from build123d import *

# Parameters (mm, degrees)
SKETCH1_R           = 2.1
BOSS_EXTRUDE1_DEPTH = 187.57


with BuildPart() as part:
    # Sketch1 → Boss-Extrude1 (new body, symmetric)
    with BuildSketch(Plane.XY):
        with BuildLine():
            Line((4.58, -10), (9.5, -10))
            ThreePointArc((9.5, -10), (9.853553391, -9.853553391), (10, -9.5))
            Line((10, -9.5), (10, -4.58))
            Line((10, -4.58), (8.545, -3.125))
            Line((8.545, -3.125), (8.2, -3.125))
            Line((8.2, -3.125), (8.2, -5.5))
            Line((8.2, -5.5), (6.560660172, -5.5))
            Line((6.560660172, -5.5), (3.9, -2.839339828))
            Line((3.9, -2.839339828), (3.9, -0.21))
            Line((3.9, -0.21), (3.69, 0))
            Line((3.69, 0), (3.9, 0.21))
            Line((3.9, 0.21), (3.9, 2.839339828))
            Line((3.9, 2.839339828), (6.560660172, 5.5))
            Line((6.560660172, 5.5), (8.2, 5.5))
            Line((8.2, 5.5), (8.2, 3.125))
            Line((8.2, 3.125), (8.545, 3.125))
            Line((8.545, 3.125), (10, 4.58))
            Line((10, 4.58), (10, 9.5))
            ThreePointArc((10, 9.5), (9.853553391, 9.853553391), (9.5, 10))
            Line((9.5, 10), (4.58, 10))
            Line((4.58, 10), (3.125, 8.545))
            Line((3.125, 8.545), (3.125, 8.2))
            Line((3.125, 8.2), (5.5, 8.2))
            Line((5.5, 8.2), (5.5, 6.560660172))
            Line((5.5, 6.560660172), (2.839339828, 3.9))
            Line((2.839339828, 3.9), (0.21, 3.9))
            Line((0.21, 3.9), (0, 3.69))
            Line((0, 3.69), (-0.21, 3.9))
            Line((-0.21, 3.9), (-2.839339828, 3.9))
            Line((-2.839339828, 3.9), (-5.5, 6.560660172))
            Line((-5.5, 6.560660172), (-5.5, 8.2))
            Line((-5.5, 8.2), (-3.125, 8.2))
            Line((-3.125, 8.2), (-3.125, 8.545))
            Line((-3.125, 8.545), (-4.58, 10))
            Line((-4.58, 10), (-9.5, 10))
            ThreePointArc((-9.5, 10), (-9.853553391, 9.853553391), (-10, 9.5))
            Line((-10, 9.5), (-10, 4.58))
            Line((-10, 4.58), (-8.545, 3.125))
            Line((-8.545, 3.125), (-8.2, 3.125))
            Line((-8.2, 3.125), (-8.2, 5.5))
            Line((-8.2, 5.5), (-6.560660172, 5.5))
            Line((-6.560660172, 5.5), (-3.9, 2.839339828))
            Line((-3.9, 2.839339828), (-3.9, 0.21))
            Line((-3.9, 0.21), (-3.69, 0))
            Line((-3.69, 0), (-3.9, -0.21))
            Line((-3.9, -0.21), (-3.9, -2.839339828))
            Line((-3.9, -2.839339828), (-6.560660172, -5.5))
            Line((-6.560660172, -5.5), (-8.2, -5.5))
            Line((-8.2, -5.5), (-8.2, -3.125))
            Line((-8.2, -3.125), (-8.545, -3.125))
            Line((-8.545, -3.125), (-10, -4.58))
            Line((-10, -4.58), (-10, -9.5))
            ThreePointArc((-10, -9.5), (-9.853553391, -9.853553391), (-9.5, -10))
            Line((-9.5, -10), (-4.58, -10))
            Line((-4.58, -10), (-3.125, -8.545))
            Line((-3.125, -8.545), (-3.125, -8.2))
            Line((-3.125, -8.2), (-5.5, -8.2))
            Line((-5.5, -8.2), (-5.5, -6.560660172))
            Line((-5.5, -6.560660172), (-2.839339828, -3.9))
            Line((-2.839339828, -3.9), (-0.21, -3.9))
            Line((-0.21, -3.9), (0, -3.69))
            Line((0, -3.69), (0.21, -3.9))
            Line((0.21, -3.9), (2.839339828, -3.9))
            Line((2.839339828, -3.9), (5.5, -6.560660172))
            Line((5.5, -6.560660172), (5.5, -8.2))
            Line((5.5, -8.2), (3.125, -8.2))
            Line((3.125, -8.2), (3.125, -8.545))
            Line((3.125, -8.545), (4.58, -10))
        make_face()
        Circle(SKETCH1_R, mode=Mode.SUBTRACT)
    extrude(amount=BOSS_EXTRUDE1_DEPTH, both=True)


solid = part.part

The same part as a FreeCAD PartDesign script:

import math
import FreeCAD as App
import Part
import Sketcher
from FreeCAD import Vector

doc = App.newDocument("Part")
body = doc.addObject("PartDesign::Body", "Body")

sketch1 = body.newObject("Sketcher::SketchObject", "Sketch")
sketch1.AttachmentSupport = (doc.getObject("XY_Plane"), [""])
sketch1.MapMode = "FlatFace"
sketch1.addGeometry(Part.LineSegment(Vector(4.58, -10, 0), Vector(9.5, -10, 0)), False)
sketch1.addGeometry(Part.ArcOfCircle(Part.Circle(Vector(9.5, -9.5, 0), Vector(0, 0, 1), 0.5), math.radians(-90), math.radians(0)), False)
sketch1.addGeometry(Part.LineSegment(Vector(10, -9.5, 0), Vector(10, -4.58, 0)), False)
sketch1.addGeometry(Part.LineSegment(Vector(10, -4.58, 0), Vector(8.545, -3.125, 0)), False)
sketch1.addGeometry(Part.LineSegment(Vector(8.545, -3.125, 0), Vector(8.2, -3.125, 0)), False)
sketch1.addGeometry(Part.LineSegment(Vector(8.2, -3.125, 0), Vector(8.2, -5.5, 0)), False)
sketch1.addGeometry(Part.LineSegment(Vector(8.2, -5.5, 0), Vector(6.56066, -5.5, 0)), False)
sketch1.addGeometry(Part.LineSegment(Vector(6.56066, -5.5, 0), Vector(3.9, -2.83934, 0)), False)
sketch1.addGeometry(Part.LineSegment(Vector(3.9, -2.83934, 0), Vector(3.9, -0.21, 0)), False)
sketch1.addGeometry(Part.LineSegment(Vector(3.9, -0.21, 0), Vector(3.69, 0, 0)), False)
sketch1.addGeometry(Part.LineSegment(Vector(3.69, 0, 0), Vector(3.9, 0.21, 0)), False)
sketch1.addGeometry(Part.LineSegment(Vector(3.9, 0.21, 0), Vector(3.9, 2.83934, 0)), False)
sketch1.addGeometry(Part.LineSegment(Vector(3.9, 2.83934, 0), Vector(6.56066, 5.5, 0)), False)
sketch1.addGeometry(Part.LineSegment(Vector(6.56066, 5.5, 0), Vector(8.2, 5.5, 0)), False)
sketch1.addGeometry(Part.LineSegment(Vector(8.2, 5.5, 0), Vector(8.2, 3.125, 0)), False)
sketch1.addGeometry(Part.LineSegment(Vector(8.2, 3.125, 0), Vector(8.545, 3.125, 0)), False)
sketch1.addGeometry(Part.LineSegment(Vector(8.545, 3.125, 0), Vector(10, 4.58, 0)), False)
sketch1.addGeometry(Part.LineSegment(Vector(10, 4.58, 0), Vector(10, 9.5, 0)), False)
sketch1.addGeometry(Part.ArcOfCircle(Part.Circle(Vector(9.5, 9.5, 0), Vector(0, 0, 1), 0.5), math.radians(0), math.radians(90)), False)
sketch1.addGeometry(Part.LineSegment(Vector(9.5, 10, 0), Vector(4.58, 10, 0)), False)
sketch1.addGeometry(Part.LineSegment(Vector(4.58, 10, 0), Vector(3.125, 8.545, 0)), False)
sketch1.addGeometry(Part.LineSegment(Vector(3.125, 8.545, 0), Vector(3.125, 8.2, 0)), False)
sketch1.addGeometry(Part.LineSegment(Vector(3.125, 8.2, 0), Vector(5.5, 8.2, 0)), False)
sketch1.addGeometry(Part.LineSegment(Vector(5.5, 8.2, 0), Vector(5.5, 6.56066, 0)), False)
sketch1.addGeometry(Part.LineSegment(Vector(5.5, 6.56066, 0), Vector(2.83934, 3.9, 0)), False)
sketch1.addGeometry(Part.LineSegment(Vector(2.83934, 3.9, 0), Vector(0.21, 3.9, 0)), False)
sketch1.addGeometry(Part.LineSegment(Vector(0.21, 3.9, 0), Vector(0, 3.69, 0)), False)
sketch1.addGeometry(Part.LineSegment(Vector(0, 3.69, 0), Vector(-0.21, 3.9, 0)), False)
sketch1.addGeometry(Part.LineSegment(Vector(-0.21, 3.9, 0), Vector(-2.83934, 3.9, 0)), False)
sketch1.addGeometry(Part.LineSegment(Vector(-2.83934, 3.9, 0), Vector(-5.5, 6.56066, 0)), False)
sketch1.addGeometry(Part.LineSegment(Vector(-5.5, 6.56066, 0), Vector(-5.5, 8.2, 0)), False)
sketch1.addGeometry(Part.LineSegment(Vector(-5.5, 8.2, 0), Vector(-3.125, 8.2, 0)), False)
sketch1.addGeometry(Part.LineSegment(Vector(-3.125, 8.2, 0), Vector(-3.125, 8.545, 0)), False)
sketch1.addGeometry(Part.LineSegment(Vector(-3.125, 8.545, 0), Vector(-4.58, 10, 0)), False)
sketch1.addGeometry(Part.LineSegment(Vector(-4.58, 10, 0), Vector(-9.5, 10, 0)), False)
sketch1.addGeometry(Part.ArcOfCircle(Part.Circle(Vector(-9.5, 9.5, 0), Vector(0, 0, 1), 0.5), math.radians(90), math.radians(180)), False)
sketch1.addGeometry(Part.LineSegment(Vector(-10, 9.5, 0), Vector(-10, 4.58, 0)), False)
sketch1.addGeometry(Part.LineSegment(Vector(-10, 4.58, 0), Vector(-8.545, 3.125, 0)), False)
sketch1.addGeometry(Part.LineSegment(Vector(-8.545, 3.125, 0), Vector(-8.2, 3.125, 0)), False)
sketch1.addGeometry(Part.LineSegment(Vector(-8.2, 3.125, 0), Vector(-8.2, 5.5, 0)), False)
sketch1.addGeometry(Part.LineSegment(Vector(-8.2, 5.5, 0), Vector(-6.56066, 5.5, 0)), False)
sketch1.addGeometry(Part.LineSegment(Vector(-6.56066, 5.5, 0), Vector(-3.9, 2.83934, 0)), False)
sketch1.addGeometry(Part.LineSegment(Vector(-3.9, 2.83934, 0), Vector(-3.9, 0.21, 0)), False)
sketch1.addGeometry(Part.LineSegment(Vector(-3.9, 0.21, 0), Vector(-3.69, 0, 0)), False)
sketch1.addGeometry(Part.LineSegment(Vector(-3.69, 0, 0), Vector(-3.9, -0.21, 0)), False)
sketch1.addGeometry(Part.LineSegment(Vector(-3.9, -0.21, 0), Vector(-3.9, -2.83934, 0)), False)
sketch1.addGeometry(Part.LineSegment(Vector(-3.9, -2.83934, 0), Vector(-6.56066, -5.5, 0)), False)
sketch1.addGeometry(Part.LineSegment(Vector(-6.56066, -5.5, 0), Vector(-8.2, -5.5, 0)), False)
sketch1.addGeometry(Part.LineSegment(Vector(-8.2, -5.5, 0), Vector(-8.2, -3.125, 0)), False)
sketch1.addGeometry(Part.LineSegment(Vector(-8.2, -3.125, 0), Vector(-8.545, -3.125, 0)), False)
sketch1.addGeometry(Part.LineSegment(Vector(-8.545, -3.125, 0), Vector(-10, -4.58, 0)), False)
sketch1.addGeometry(Part.LineSegment(Vector(-10, -4.58, 0), Vector(-10, -9.5, 0)), False)
sketch1.addGeometry(Part.ArcOfCircle(Part.Circle(Vector(-9.5, -9.5, 0), Vector(0, 0, 1), 0.5), math.radians(180), math.radians(270)), False)
sketch1.addGeometry(Part.LineSegment(Vector(-9.5, -10, 0), Vector(-4.58, -10, 0)), False)
sketch1.addGeometry(Part.LineSegment(Vector(-4.58, -10, 0), Vector(-3.125, -8.545, 0)), False)
sketch1.addGeometry(Part.LineSegment(Vector(-3.125, -8.545, 0), Vector(-3.125, -8.2, 0)), False)
sketch1.addGeometry(Part.LineSegment(Vector(-3.125, -8.2, 0), Vector(-5.5, -8.2, 0)), False)
sketch1.addGeometry(Part.LineSegment(Vector(-5.5, -8.2, 0), Vector(-5.5, -6.56066, 0)), False)
sketch1.addGeometry(Part.LineSegment(Vector(-5.5, -6.56066, 0), Vector(-2.83934, -3.9, 0)), False)
sketch1.addGeometry(Part.LineSegment(Vector(-2.83934, -3.9, 0), Vector(-0.21, -3.9, 0)), False)
sketch1.addGeometry(Part.LineSegment(Vector(-0.21, -3.9, 0), Vector(0, -3.69, 0)), False)
sketch1.addGeometry(Part.LineSegment(Vector(0, -3.69, 0), Vector(0.21, -3.9, 0)), False)
sketch1.addGeometry(Part.LineSegment(Vector(0.21, -3.9, 0), Vector(2.83934, -3.9, 0)), False)
sketch1.addGeometry(Part.LineSegment(Vector(2.83934, -3.9, 0), Vector(5.5, -6.56066, 0)), False)
sketch1.addGeometry(Part.LineSegment(Vector(5.5, -6.56066, 0), Vector(5.5, -8.2, 0)), False)
sketch1.addGeometry(Part.LineSegment(Vector(5.5, -8.2, 0), Vector(3.125, -8.2, 0)), False)
sketch1.addGeometry(Part.LineSegment(Vector(3.125, -8.2, 0), Vector(3.125, -8.545, 0)), False)
sketch1.addGeometry(Part.LineSegment(Vector(3.125, -8.545, 0), Vector(4.58, -10, 0)), False)
sketch1.addGeometry(Part.Circle(Vector(0, 0, 0), Vector(0, 0, 1), 2.1), False)
sketch1.addConstraint(Sketcher.Constraint("Tangent", 0, 2, 1, 1))
sketch1.addConstraint(Sketcher.Constraint("Tangent", 1, 2, 2, 1))
sketch1.addConstraint(Sketcher.Constraint("Coincident", 2, 2, 3, 1))
sketch1.addConstraint(Sketcher.Constraint("Coincident", 3, 2, 4, 1))
sketch1.addConstraint(Sketcher.Constraint("Coincident", 4, 2, 5, 1))
sketch1.addConstraint(Sketcher.Constraint("Coincident", 5, 2, 6, 1))
sketch1.addConstraint(Sketcher.Constraint("Coincident", 6, 2, 7, 1))
sketch1.addConstraint(Sketcher.Constraint("Coincident", 7, 2, 8, 1))
sketch1.addConstraint(Sketcher.Constraint("Coincident", 8, 2, 9, 1))
sketch1.addConstraint(Sketcher.Constraint("Coincident", 9, 2, 10, 1))
sketch1.addConstraint(Sketcher.Constraint("Coincident", 10, 2, 11, 1))
sketch1.addConstraint(Sketcher.Constraint("Coincident", 11, 2, 12, 1))
sketch1.addConstraint(Sketcher.Constraint("Coincident", 12, 2, 13, 1))
sketch1.addConstraint(Sketcher.Constraint("Coincident", 13, 2, 14, 1))
sketch1.addConstraint(Sketcher.Constraint("Coincident", 14, 2, 15, 1))
sketch1.addConstraint(Sketcher.Constraint("Coincident", 15, 2, 16, 1))
sketch1.addConstraint(Sketcher.Constraint("Coincident", 16, 2, 17, 1))
sketch1.addConstraint(Sketcher.Constraint("Tangent", 17, 2, 18, 1))
sketch1.addConstraint(Sketcher.Constraint("Tangent", 18, 2, 19, 1))
sketch1.addConstraint(Sketcher.Constraint("Coincident", 19, 2, 20, 1))
sketch1.addConstraint(Sketcher.Constraint("Coincident", 20, 2, 21, 1))
sketch1.addConstraint(Sketcher.Constraint("Coincident", 21, 2, 22, 1))
sketch1.addConstraint(Sketcher.Constraint("Coincident", 22, 2, 23, 1))
sketch1.addConstraint(Sketcher.Constraint("Coincident", 23, 2, 24, 1))
sketch1.addConstraint(Sketcher.Constraint("Coincident", 24, 2, 25, 1))
sketch1.addConstraint(Sketcher.Constraint("Coincident", 25, 2, 26, 1))
sketch1.addConstraint(Sketcher.Constraint("Coincident", 26, 2, 27, 1))
sketch1.addConstraint(Sketcher.Constraint("Coincident", 27, 2, 28, 1))
sketch1.addConstraint(Sketcher.Constraint("Coincident", 28, 2, 29, 1))
sketch1.addConstraint(Sketcher.Constraint("Coincident", 29, 2, 30, 1))
sketch1.addConstraint(Sketcher.Constraint("Coincident", 30, 2, 31, 1))
sketch1.addConstraint(Sketcher.Constraint("Coincident", 31, 2, 32, 1))
sketch1.addConstraint(Sketcher.Constraint("Coincident", 32, 2, 33, 1))
sketch1.addConstraint(Sketcher.Constraint("Coincident", 33, 2, 34, 1))
sketch1.addConstraint(Sketcher.Constraint("Tangent", 34, 2, 35, 1))
sketch1.addConstraint(Sketcher.Constraint("Tangent", 35, 2, 36, 1))
sketch1.addConstraint(Sketcher.Constraint("Coincident", 36, 2, 37, 1))
sketch1.addConstraint(Sketcher.Constraint("Coincident", 37, 2, 38, 1))
sketch1.addConstraint(Sketcher.Constraint("Coincident", 38, 2, 39, 1))
sketch1.addConstraint(Sketcher.Constraint("Coincident", 39, 2, 40, 1))
sketch1.addConstraint(Sketcher.Constraint("Coincident", 40, 2, 41, 1))
sketch1.addConstraint(Sketcher.Constraint("Coincident", 41, 2, 42, 1))
sketch1.addConstraint(Sketcher.Constraint("Coincident", 42, 2, 43, 1))
sketch1.addConstraint(Sketcher.Constraint("Coincident", 43, 2, 44, 1))
sketch1.addConstraint(Sketcher.Constraint("Coincident", 44, 2, 45, 1))
sketch1.addConstraint(Sketcher.Constraint("Coincident", 45, 2, 46, 1))
sketch1.addConstraint(Sketcher.Constraint("Coincident", 46, 2, 47, 1))
sketch1.addConstraint(Sketcher.Constraint("Coincident", 47, 2, 48, 1))
sketch1.addConstraint(Sketcher.Constraint("Coincident", 48, 2, 49, 1))
sketch1.addConstraint(Sketcher.Constraint("Coincident", 49, 2, 50, 1))
sketch1.addConstraint(Sketcher.Constraint("Coincident", 50, 2, 51, 1))
sketch1.addConstraint(Sketcher.Constraint("Tangent", 51, 2, 52, 1))
sketch1.addConstraint(Sketcher.Constraint("Tangent", 52, 2, 53, 1))
sketch1.addConstraint(Sketcher.Constraint("Coincident", 53, 2, 54, 1))
sketch1.addConstraint(Sketcher.Constraint("Coincident", 54, 2, 55, 1))
sketch1.addConstraint(Sketcher.Constraint("Coincident", 55, 2, 56, 1))
sketch1.addConstraint(Sketcher.Constraint("Coincident", 56, 2, 57, 1))
sketch1.addConstraint(Sketcher.Constraint("Coincident", 57, 2, 58, 1))
sketch1.addConstraint(Sketcher.Constraint("Coincident", 58, 2, 59, 1))
sketch1.addConstraint(Sketcher.Constraint("Coincident", 59, 2, 60, 1))
sketch1.addConstraint(Sketcher.Constraint("Coincident", 60, 2, 61, 1))
sketch1.addConstraint(Sketcher.Constraint("Coincident", 61, 2, 62, 1))
sketch1.addConstraint(Sketcher.Constraint("Coincident", 62, 2, 63, 1))
sketch1.addConstraint(Sketcher.Constraint("Coincident", 63, 2, 64, 1))
sketch1.addConstraint(Sketcher.Constraint("Coincident", 64, 2, 65, 1))
sketch1.addConstraint(Sketcher.Constraint("Coincident", 65, 2, 66, 1))
sketch1.addConstraint(Sketcher.Constraint("Coincident", 66, 2, 67, 1))
sketch1.addConstraint(Sketcher.Constraint("Coincident", 67, 2, 0, 1))
sketch1.addConstraint(Sketcher.Constraint("Horizontal", 0))
sketch1.addConstraint(Sketcher.Constraint("Vertical", 2))
sketch1.addConstraint(Sketcher.Constraint("Horizontal", 4))
sketch1.addConstraint(Sketcher.Constraint("Vertical", 5))
sketch1.addConstraint(Sketcher.Constraint("Horizontal", 6))
sketch1.addConstraint(Sketcher.Constraint("Vertical", 8))
sketch1.addConstraint(Sketcher.Constraint("Vertical", 11))
sketch1.addConstraint(Sketcher.Constraint("Horizontal", 13))
sketch1.addConstraint(Sketcher.Constraint("Vertical", 14))
sketch1.addConstraint(Sketcher.Constraint("Horizontal", 15))
sketch1.addConstraint(Sketcher.Constraint("Vertical", 17))
sketch1.addConstraint(Sketcher.Constraint("Horizontal", 19))
sketch1.addConstraint(Sketcher.Constraint("Vertical", 21))
sketch1.addConstraint(Sketcher.Constraint("Horizontal", 22))
sketch1.addConstraint(Sketcher.Constraint("Vertical", 23))
sketch1.addConstraint(Sketcher.Constraint("Horizontal", 25))
sketch1.addConstraint(Sketcher.Constraint("Horizontal", 28))
sketch1.addConstraint(Sketcher.Constraint("Vertical", 30))
sketch1.addConstraint(Sketcher.Constraint("Horizontal", 31))
sketch1.addConstraint(Sketcher.Constraint("Vertical", 32))
sketch1.addConstraint(Sketcher.Constraint("Horizontal", 34))
sketch1.addConstraint(Sketcher.Constraint("Vertical", 36))
sketch1.addConstraint(Sketcher.Constraint("Horizontal", 38))
sketch1.addConstraint(Sketcher.Constraint("Vertical", 39))
sketch1.addConstraint(Sketcher.Constraint("Horizontal", 40))
sketch1.addConstraint(Sketcher.Constraint("Vertical", 42))
sketch1.addConstraint(Sketcher.Constraint("Vertical", 45))
sketch1.addConstraint(Sketcher.Constraint("Horizontal", 47))
sketch1.addConstraint(Sketcher.Constraint("Vertical", 48))
sketch1.addConstraint(Sketcher.Constraint("Horizontal", 49))
sketch1.addConstraint(Sketcher.Constraint("Vertical", 51))
sketch1.addConstraint(Sketcher.Constraint("Horizontal", 53))
sketch1.addConstraint(Sketcher.Constraint("Vertical", 55))
sketch1.addConstraint(Sketcher.Constraint("Horizontal", 56))
sketch1.addConstraint(Sketcher.Constraint("Vertical", 57))
sketch1.addConstraint(Sketcher.Constraint("Horizontal", 59))
sketch1.addConstraint(Sketcher.Constraint("Horizontal", 62))
sketch1.addConstraint(Sketcher.Constraint("Vertical", 64))
sketch1.addConstraint(Sketcher.Constraint("Horizontal", 65))
sketch1.addConstraint(Sketcher.Constraint("Vertical", 66))
sketch1.addConstraint(Sketcher.Constraint("Coincident", 68, 3, -1, 1))
sketch1.addConstraint(Sketcher.Constraint("Equal", 1, 18))
sketch1.addConstraint(Sketcher.Constraint("Equal", 18, 35))
sketch1.addConstraint(Sketcher.Constraint("Equal", 35, 52))
sketch1.addConstraint(Sketcher.Constraint("Symmetric", 1, 3, 35, 3, -1, 1))
sketch1.addConstraint(Sketcher.Constraint("Symmetric", 18, 3, 52, 3, -1, 1))
sketch1.addConstraint(Sketcher.Constraint("Symmetric", 3, 2, 37, 2, -1, 1))
sketch1.addConstraint(Sketcher.Constraint("Symmetric", 5, 2, 39, 2, -1, 1))
sketch1.addConstraint(Sketcher.Constraint("Symmetric", 7, 2, 41, 2, -1, 1))
sketch1.addConstraint(Sketcher.Constraint("Symmetric", 9, 2, 43, 2, -1, 1))
sketch1.addConstraint(Sketcher.Constraint("Symmetric", 10, 2, 44, 2, -1, 1))
sketch1.addConstraint(Sketcher.Constraint("Symmetric", 12, 2, 46, 2, -1, 1))
sketch1.addConstraint(Sketcher.Constraint("Symmetric", 14, 2, 48, 2, -1, 1))
sketch1.addConstraint(Sketcher.Constraint("Symmetric", 20, 2, 54, 2, -1, 1))
sketch1.addConstraint(Sketcher.Constraint("Symmetric", 22, 2, 56, 2, -1, 1))
sketch1.addConstraint(Sketcher.Constraint("Symmetric", 24, 2, 58, 2, -1, 1))
sketch1.addConstraint(Sketcher.Constraint("Symmetric", 26, 2, 60, 2, -1, 1))
sketch1.addConstraint(Sketcher.Constraint("Symmetric", 27, 2, 61, 2, -1, 1))
sketch1.addConstraint(Sketcher.Constraint("Symmetric", 29, 2, 63, 2, -1, 1))
sketch1.addConstraint(Sketcher.Constraint("Symmetric", 31, 2, 65, 2, -1, 1))
sketch1.addConstraint(Sketcher.Constraint("Symmetric", 18, 3, 35, 3, -2))
sketch1.addConstraint(Sketcher.Constraint("Symmetric", 25, 2, 27, 2, -2))
sketch1.addConstraint(Sketcher.Constraint("Symmetric", 23, 2, 29, 2, -2))
sketch1.addConstraint(Sketcher.Constraint("Symmetric", 21, 2, 31, 2, -2))
sketch1.addConstraint(Sketcher.Constraint("Symmetric", 15, 2, 37, 2, -2))
sketch1.addConstraint(Sketcher.Constraint("Symmetric", 13, 2, 39, 2, -2))
sketch1.addConstraint(Sketcher.Constraint("Symmetric", 11, 2, 41, 2, -2))
sketch1.addConstraint(Sketcher.Constraint("PointOnObject", 9, 2, -1))
sketch1.addConstraint(Sketcher.Constraint("PointOnObject", 26, 2, -2))
sketch1.addConstraint(Sketcher.Constraint("Parallel", 3, 7))
sketch1.addConstraint(Sketcher.Constraint("Parallel", 7, 9))
sketch1.addConstraint(Sketcher.Constraint("Perpendicular", 9, 10))
sketch1.addConstraint(Sketcher.Constraint("Parallel", 10, 12))
sketch1.addConstraint(Sketcher.Constraint("Parallel", 12, 16))
sketch1.addConstraint(Sketcher.Constraint("Parallel", 16, 20))
sketch1.addConstraint(Sketcher.Constraint("Parallel", 20, 24))
sketch1.addConstraint(Sketcher.Constraint("Parallel", 24, 26))
sketch1.addConstraint(Sketcher.Constraint("Perpendicular", 26, 27))
sketch1.addConstraint(Sketcher.Constraint("Parallel", 27, 29))
sketch1.addConstraint(Sketcher.Constraint("Parallel", 29, 33))
sketch1.addConstraint(Sketcher.Constraint("Parallel", 33, 37))
sketch1.addConstraint(Sketcher.Constraint("Parallel", 37, 41))
sketch1.addConstraint(Sketcher.Constraint("Parallel", 41, 43))
sketch1.addConstraint(Sketcher.Constraint("Parallel", 44, 46))
sketch1.addConstraint(Sketcher.Constraint("Parallel", 46, 50))
sketch1.addConstraint(Sketcher.Constraint("Parallel", 50, 54))
sketch1.addConstraint(Sketcher.Constraint("Parallel", 54, 58))
sketch1.addConstraint(Sketcher.Constraint("Parallel", 58, 60))
sketch1.addConstraint(Sketcher.Constraint("Parallel", 61, 63))
sketch1.addConstraint(Sketcher.Constraint("Parallel", 63, 67))
sketch1.addConstraint(Sketcher.Constraint("Horizontal", 20, 2, 32, 2))
sketch1.addConstraint(Sketcher.Constraint("Horizontal", 2, 2, 50, 2))
sketch1.addConstraint(Sketcher.Constraint("Horizontal", 54, 2, 66, 2))
sketch1.addConstraint(Sketcher.Constraint("Equal", 53, 2))
sketch1.addConstraint(Sketcher.Constraint("Equal", 65, 5))
sketch1.addConstraint(Sketcher.Constraint("Equal", 62, 8))
sketch1.addConstraint(Sketcher.Constraint("Equal", 49, 21))
sketch1.addConstraint(Sketcher.Constraint("Equal", 47, 23))
sketch1.addConstraint(Sketcher.Constraint("Equal", 16, 20))
sketch1.addConstraint(Sketcher.Constraint("Equal", 12, 24))
sketch1.addConstraint(Sketcher.Constraint("Equal", 10, 26))
sketch1.addConstraint(Sketcher.Constraint("Diameter", 68, 4.2))
sketch1.addConstraint(Sketcher.Constraint("Radius", 1, 0.5))
sketch1.addConstraint(Sketcher.Constraint("DistanceY", 0, 2, -1, 1, 10.0))
sketch1.addConstraint(Sketcher.Constraint("DistanceX", 0, 1, 0, 2, 4.92))
sketch1.addConstraint(Sketcher.Constraint("DistanceX", -1, 1, 4, 2, 8.2))
sketch1.addConstraint(Sketcher.Constraint("DistanceY", 5, 2, -1, 1, 5.5))
sketch1.addConstraint(Sketcher.Constraint("DistanceX", -1, 1, 7, 2, 3.9))
sketch1.addConstraint(Sketcher.Constraint("DistanceX", 4, 2, 4, 1, 0.345))
sketch1.addConstraint(Sketcher.Constraint("DistanceY", 8, 2, -1, 1, 0.21))
sketch1.addConstraint(Sketcher.Constraint("DistanceX", 6, 2, 6, 1, 1.63934))
pad1 = body.newObject("PartDesign::Pad", "Pad")
pad1.Profile = sketch1
pad1.Length = 375.14
pad1.Midplane = True

doc.recompute()
